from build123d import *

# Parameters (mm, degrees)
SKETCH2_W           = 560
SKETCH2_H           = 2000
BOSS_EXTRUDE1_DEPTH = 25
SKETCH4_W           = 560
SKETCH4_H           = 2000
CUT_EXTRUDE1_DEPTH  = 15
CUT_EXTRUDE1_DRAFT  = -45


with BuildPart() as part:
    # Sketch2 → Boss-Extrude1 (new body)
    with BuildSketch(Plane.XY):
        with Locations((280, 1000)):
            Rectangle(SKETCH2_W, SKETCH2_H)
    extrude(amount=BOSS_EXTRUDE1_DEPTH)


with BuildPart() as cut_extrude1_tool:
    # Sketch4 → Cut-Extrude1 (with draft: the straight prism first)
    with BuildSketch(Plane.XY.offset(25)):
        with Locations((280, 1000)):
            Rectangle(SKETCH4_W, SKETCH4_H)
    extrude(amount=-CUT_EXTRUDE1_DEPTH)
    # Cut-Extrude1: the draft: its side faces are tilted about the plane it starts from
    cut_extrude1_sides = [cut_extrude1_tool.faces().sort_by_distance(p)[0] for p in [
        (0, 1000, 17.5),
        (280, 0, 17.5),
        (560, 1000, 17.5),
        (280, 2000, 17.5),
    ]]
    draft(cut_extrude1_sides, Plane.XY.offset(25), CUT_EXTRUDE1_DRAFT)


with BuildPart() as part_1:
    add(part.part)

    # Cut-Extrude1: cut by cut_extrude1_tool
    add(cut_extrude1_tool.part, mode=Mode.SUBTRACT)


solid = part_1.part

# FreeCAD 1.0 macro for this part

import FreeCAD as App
import Part
import Sketcher
from FreeCAD import Vector
Q = App.Units.Quantity


def faces_at(feature, points):
    """Names of the faces that lie closest to the given points."""
    faces = feature.Shape.Faces
    near = lambda p: min(range(len(faces)), key=lambda i: faces[i].distToShape(Part.Vertex(*p))[0])
    return sorted({f"Face{near(p) + 1}" for p in points})

doc = App.newDocument("Part")
body = doc.addObject("PartDesign::Body", "Body")

# Sketch on XY plane
sketch1 = doc.addObject("Sketcher::SketchObject", "Sketch")
body.addObject(sketch1)
sketch1.AttachmentSupport = (doc.XY_Plane, [""])
sketch1.MapMode = "FlatFace"
sketch1.addGeometry([
    Part.LineSegment(Vector(0, 2000, 0), Vector(0, 0, 0)),
    Part.LineSegment(Vector(0, 0, 0), Vector(560, 0, 0)),
    Part.LineSegment(Vector(560, 0, 0), Vector(560, 2000, 0)),
    Part.LineSegment(Vector(560, 2000, 0), Vector(0, 2000, 0)),
], False)
sketch1.addConstraint([
    Sketcher.Constraint("Coincident", 0, 2, 1, 1),
    Sketcher.Constraint("Coincident", 1, 2, 2, 1),
    Sketcher.Constraint("Coincident", 2, 2, 3, 1),
    Sketcher.Constraint("Coincident", 3, 2, 0, 1),
    Sketcher.Constraint("Vertical", 0),
    Sketcher.Constraint("Horizontal", 1),
    Sketcher.Constraint("Vertical", 2),
    Sketcher.Constraint("Horizontal", 3),
    Sketcher.Constraint("Coincident", 0, 2, -1, 1),
    Sketcher.Constraint("DistanceX", 1, 1, 1, 2, Q("560 mm")),
    Sketcher.Constraint("DistanceY", 0, 2, 0, 1, Q("2000 mm")),
])
pad1 = doc.addObject("PartDesign::Pad", "Pad")
body.addObject(pad1)
pad1.Profile = sketch1
pad1.Length = 25
body2 = doc.addObject("PartDesign::Body", "Body001")

# Sketch on XY plane
sketch2 = doc.addObject("Sketcher::SketchObject", "Sketch001")
body2.addObject(sketch2)
sketch2.AttachmentSupport = (doc.getObject("XY_Plane001"), [""])
sketch2.MapMode = "FlatFace"
sketch2.AttachmentOffset = App.Placement(Vector(0, 0, 25), App.Rotation())
sketch2.addGeometry([
    Part.LineSegment(Vector(0, 2000, 0), Vector(0, 0, 0)),
    Part.LineSegment(Vector(0, 0, 0), Vector(560, 0, 0)),
    Part.LineSegment(Vector(560, 0, 0), Vector(560, 2000, 0)),
    Part.LineSegment(Vector(560, 2000, 0), Vector(0, 2000, 0)),
], False)
sketch2.addConstraint([
    Sketcher.Constraint("Coincident", 0, 2, 1, 1),
    Sketcher.Constraint("Coincident", 1, 2, 2, 1),
    Sketcher.Constraint("Coincident", 2, 2, 3, 1),
    Sketcher.Constraint("Coincident", 3, 2, 0, 1),
    Sketcher.Constraint("Vertical", 0),
    Sketcher.Constraint("Horizontal", 1),
    Sketcher.Constraint("Vertical", 2),
    Sketcher.Constraint("Horizontal", 3),
    Sketcher.Constraint("Coincident", 0, 2, -1, 1),
    Sketcher.Constraint("DistanceX", 1, 1, 1, 2, Q("560 mm")),
    Sketcher.Constraint("DistanceY", 0, 2, 0, 1, Q("2000 mm")),
])
pad2 = doc.addObject("PartDesign::Pad", "Pad001")
body2.addObject(pad2)
pad2.Profile = sketch2
pad2.Length = 15
pad2.Reversed = True
doc.recompute()

datumplane = doc.addObject("PartDesign::Plane", "DatumPlane")
body2.addObject(datumplane)
datumplane.AttachmentSupport = (doc.getObject("XY_Plane001"), [""])
datumplane.MapMode = "FlatFace"
datumplane.AttachmentOffset = App.Placement(Vector(0, 0, 25), App.Rotation())
draft = doc.addObject("PartDesign::Draft", "Draft")
body2.addObject(draft)
draft.Base = (pad2, faces_at(pad2, [
    (0, 1000, 17.5),
    (280, 0, 17.5),
    (560, 1000, 17.5),
    (280, 2000, 17.5),
]))
draft.NeutralPlane = (datumplane, [""])
draft.Angle = 45
draft.Reversed = True
doc.recompute()

boolean = doc.addObject("PartDesign::Boolean", "Boolean")
body.addObject(boolean)
boolean.Type = "Cut"
boolean.addObjects([body2])

doc.recompute()
